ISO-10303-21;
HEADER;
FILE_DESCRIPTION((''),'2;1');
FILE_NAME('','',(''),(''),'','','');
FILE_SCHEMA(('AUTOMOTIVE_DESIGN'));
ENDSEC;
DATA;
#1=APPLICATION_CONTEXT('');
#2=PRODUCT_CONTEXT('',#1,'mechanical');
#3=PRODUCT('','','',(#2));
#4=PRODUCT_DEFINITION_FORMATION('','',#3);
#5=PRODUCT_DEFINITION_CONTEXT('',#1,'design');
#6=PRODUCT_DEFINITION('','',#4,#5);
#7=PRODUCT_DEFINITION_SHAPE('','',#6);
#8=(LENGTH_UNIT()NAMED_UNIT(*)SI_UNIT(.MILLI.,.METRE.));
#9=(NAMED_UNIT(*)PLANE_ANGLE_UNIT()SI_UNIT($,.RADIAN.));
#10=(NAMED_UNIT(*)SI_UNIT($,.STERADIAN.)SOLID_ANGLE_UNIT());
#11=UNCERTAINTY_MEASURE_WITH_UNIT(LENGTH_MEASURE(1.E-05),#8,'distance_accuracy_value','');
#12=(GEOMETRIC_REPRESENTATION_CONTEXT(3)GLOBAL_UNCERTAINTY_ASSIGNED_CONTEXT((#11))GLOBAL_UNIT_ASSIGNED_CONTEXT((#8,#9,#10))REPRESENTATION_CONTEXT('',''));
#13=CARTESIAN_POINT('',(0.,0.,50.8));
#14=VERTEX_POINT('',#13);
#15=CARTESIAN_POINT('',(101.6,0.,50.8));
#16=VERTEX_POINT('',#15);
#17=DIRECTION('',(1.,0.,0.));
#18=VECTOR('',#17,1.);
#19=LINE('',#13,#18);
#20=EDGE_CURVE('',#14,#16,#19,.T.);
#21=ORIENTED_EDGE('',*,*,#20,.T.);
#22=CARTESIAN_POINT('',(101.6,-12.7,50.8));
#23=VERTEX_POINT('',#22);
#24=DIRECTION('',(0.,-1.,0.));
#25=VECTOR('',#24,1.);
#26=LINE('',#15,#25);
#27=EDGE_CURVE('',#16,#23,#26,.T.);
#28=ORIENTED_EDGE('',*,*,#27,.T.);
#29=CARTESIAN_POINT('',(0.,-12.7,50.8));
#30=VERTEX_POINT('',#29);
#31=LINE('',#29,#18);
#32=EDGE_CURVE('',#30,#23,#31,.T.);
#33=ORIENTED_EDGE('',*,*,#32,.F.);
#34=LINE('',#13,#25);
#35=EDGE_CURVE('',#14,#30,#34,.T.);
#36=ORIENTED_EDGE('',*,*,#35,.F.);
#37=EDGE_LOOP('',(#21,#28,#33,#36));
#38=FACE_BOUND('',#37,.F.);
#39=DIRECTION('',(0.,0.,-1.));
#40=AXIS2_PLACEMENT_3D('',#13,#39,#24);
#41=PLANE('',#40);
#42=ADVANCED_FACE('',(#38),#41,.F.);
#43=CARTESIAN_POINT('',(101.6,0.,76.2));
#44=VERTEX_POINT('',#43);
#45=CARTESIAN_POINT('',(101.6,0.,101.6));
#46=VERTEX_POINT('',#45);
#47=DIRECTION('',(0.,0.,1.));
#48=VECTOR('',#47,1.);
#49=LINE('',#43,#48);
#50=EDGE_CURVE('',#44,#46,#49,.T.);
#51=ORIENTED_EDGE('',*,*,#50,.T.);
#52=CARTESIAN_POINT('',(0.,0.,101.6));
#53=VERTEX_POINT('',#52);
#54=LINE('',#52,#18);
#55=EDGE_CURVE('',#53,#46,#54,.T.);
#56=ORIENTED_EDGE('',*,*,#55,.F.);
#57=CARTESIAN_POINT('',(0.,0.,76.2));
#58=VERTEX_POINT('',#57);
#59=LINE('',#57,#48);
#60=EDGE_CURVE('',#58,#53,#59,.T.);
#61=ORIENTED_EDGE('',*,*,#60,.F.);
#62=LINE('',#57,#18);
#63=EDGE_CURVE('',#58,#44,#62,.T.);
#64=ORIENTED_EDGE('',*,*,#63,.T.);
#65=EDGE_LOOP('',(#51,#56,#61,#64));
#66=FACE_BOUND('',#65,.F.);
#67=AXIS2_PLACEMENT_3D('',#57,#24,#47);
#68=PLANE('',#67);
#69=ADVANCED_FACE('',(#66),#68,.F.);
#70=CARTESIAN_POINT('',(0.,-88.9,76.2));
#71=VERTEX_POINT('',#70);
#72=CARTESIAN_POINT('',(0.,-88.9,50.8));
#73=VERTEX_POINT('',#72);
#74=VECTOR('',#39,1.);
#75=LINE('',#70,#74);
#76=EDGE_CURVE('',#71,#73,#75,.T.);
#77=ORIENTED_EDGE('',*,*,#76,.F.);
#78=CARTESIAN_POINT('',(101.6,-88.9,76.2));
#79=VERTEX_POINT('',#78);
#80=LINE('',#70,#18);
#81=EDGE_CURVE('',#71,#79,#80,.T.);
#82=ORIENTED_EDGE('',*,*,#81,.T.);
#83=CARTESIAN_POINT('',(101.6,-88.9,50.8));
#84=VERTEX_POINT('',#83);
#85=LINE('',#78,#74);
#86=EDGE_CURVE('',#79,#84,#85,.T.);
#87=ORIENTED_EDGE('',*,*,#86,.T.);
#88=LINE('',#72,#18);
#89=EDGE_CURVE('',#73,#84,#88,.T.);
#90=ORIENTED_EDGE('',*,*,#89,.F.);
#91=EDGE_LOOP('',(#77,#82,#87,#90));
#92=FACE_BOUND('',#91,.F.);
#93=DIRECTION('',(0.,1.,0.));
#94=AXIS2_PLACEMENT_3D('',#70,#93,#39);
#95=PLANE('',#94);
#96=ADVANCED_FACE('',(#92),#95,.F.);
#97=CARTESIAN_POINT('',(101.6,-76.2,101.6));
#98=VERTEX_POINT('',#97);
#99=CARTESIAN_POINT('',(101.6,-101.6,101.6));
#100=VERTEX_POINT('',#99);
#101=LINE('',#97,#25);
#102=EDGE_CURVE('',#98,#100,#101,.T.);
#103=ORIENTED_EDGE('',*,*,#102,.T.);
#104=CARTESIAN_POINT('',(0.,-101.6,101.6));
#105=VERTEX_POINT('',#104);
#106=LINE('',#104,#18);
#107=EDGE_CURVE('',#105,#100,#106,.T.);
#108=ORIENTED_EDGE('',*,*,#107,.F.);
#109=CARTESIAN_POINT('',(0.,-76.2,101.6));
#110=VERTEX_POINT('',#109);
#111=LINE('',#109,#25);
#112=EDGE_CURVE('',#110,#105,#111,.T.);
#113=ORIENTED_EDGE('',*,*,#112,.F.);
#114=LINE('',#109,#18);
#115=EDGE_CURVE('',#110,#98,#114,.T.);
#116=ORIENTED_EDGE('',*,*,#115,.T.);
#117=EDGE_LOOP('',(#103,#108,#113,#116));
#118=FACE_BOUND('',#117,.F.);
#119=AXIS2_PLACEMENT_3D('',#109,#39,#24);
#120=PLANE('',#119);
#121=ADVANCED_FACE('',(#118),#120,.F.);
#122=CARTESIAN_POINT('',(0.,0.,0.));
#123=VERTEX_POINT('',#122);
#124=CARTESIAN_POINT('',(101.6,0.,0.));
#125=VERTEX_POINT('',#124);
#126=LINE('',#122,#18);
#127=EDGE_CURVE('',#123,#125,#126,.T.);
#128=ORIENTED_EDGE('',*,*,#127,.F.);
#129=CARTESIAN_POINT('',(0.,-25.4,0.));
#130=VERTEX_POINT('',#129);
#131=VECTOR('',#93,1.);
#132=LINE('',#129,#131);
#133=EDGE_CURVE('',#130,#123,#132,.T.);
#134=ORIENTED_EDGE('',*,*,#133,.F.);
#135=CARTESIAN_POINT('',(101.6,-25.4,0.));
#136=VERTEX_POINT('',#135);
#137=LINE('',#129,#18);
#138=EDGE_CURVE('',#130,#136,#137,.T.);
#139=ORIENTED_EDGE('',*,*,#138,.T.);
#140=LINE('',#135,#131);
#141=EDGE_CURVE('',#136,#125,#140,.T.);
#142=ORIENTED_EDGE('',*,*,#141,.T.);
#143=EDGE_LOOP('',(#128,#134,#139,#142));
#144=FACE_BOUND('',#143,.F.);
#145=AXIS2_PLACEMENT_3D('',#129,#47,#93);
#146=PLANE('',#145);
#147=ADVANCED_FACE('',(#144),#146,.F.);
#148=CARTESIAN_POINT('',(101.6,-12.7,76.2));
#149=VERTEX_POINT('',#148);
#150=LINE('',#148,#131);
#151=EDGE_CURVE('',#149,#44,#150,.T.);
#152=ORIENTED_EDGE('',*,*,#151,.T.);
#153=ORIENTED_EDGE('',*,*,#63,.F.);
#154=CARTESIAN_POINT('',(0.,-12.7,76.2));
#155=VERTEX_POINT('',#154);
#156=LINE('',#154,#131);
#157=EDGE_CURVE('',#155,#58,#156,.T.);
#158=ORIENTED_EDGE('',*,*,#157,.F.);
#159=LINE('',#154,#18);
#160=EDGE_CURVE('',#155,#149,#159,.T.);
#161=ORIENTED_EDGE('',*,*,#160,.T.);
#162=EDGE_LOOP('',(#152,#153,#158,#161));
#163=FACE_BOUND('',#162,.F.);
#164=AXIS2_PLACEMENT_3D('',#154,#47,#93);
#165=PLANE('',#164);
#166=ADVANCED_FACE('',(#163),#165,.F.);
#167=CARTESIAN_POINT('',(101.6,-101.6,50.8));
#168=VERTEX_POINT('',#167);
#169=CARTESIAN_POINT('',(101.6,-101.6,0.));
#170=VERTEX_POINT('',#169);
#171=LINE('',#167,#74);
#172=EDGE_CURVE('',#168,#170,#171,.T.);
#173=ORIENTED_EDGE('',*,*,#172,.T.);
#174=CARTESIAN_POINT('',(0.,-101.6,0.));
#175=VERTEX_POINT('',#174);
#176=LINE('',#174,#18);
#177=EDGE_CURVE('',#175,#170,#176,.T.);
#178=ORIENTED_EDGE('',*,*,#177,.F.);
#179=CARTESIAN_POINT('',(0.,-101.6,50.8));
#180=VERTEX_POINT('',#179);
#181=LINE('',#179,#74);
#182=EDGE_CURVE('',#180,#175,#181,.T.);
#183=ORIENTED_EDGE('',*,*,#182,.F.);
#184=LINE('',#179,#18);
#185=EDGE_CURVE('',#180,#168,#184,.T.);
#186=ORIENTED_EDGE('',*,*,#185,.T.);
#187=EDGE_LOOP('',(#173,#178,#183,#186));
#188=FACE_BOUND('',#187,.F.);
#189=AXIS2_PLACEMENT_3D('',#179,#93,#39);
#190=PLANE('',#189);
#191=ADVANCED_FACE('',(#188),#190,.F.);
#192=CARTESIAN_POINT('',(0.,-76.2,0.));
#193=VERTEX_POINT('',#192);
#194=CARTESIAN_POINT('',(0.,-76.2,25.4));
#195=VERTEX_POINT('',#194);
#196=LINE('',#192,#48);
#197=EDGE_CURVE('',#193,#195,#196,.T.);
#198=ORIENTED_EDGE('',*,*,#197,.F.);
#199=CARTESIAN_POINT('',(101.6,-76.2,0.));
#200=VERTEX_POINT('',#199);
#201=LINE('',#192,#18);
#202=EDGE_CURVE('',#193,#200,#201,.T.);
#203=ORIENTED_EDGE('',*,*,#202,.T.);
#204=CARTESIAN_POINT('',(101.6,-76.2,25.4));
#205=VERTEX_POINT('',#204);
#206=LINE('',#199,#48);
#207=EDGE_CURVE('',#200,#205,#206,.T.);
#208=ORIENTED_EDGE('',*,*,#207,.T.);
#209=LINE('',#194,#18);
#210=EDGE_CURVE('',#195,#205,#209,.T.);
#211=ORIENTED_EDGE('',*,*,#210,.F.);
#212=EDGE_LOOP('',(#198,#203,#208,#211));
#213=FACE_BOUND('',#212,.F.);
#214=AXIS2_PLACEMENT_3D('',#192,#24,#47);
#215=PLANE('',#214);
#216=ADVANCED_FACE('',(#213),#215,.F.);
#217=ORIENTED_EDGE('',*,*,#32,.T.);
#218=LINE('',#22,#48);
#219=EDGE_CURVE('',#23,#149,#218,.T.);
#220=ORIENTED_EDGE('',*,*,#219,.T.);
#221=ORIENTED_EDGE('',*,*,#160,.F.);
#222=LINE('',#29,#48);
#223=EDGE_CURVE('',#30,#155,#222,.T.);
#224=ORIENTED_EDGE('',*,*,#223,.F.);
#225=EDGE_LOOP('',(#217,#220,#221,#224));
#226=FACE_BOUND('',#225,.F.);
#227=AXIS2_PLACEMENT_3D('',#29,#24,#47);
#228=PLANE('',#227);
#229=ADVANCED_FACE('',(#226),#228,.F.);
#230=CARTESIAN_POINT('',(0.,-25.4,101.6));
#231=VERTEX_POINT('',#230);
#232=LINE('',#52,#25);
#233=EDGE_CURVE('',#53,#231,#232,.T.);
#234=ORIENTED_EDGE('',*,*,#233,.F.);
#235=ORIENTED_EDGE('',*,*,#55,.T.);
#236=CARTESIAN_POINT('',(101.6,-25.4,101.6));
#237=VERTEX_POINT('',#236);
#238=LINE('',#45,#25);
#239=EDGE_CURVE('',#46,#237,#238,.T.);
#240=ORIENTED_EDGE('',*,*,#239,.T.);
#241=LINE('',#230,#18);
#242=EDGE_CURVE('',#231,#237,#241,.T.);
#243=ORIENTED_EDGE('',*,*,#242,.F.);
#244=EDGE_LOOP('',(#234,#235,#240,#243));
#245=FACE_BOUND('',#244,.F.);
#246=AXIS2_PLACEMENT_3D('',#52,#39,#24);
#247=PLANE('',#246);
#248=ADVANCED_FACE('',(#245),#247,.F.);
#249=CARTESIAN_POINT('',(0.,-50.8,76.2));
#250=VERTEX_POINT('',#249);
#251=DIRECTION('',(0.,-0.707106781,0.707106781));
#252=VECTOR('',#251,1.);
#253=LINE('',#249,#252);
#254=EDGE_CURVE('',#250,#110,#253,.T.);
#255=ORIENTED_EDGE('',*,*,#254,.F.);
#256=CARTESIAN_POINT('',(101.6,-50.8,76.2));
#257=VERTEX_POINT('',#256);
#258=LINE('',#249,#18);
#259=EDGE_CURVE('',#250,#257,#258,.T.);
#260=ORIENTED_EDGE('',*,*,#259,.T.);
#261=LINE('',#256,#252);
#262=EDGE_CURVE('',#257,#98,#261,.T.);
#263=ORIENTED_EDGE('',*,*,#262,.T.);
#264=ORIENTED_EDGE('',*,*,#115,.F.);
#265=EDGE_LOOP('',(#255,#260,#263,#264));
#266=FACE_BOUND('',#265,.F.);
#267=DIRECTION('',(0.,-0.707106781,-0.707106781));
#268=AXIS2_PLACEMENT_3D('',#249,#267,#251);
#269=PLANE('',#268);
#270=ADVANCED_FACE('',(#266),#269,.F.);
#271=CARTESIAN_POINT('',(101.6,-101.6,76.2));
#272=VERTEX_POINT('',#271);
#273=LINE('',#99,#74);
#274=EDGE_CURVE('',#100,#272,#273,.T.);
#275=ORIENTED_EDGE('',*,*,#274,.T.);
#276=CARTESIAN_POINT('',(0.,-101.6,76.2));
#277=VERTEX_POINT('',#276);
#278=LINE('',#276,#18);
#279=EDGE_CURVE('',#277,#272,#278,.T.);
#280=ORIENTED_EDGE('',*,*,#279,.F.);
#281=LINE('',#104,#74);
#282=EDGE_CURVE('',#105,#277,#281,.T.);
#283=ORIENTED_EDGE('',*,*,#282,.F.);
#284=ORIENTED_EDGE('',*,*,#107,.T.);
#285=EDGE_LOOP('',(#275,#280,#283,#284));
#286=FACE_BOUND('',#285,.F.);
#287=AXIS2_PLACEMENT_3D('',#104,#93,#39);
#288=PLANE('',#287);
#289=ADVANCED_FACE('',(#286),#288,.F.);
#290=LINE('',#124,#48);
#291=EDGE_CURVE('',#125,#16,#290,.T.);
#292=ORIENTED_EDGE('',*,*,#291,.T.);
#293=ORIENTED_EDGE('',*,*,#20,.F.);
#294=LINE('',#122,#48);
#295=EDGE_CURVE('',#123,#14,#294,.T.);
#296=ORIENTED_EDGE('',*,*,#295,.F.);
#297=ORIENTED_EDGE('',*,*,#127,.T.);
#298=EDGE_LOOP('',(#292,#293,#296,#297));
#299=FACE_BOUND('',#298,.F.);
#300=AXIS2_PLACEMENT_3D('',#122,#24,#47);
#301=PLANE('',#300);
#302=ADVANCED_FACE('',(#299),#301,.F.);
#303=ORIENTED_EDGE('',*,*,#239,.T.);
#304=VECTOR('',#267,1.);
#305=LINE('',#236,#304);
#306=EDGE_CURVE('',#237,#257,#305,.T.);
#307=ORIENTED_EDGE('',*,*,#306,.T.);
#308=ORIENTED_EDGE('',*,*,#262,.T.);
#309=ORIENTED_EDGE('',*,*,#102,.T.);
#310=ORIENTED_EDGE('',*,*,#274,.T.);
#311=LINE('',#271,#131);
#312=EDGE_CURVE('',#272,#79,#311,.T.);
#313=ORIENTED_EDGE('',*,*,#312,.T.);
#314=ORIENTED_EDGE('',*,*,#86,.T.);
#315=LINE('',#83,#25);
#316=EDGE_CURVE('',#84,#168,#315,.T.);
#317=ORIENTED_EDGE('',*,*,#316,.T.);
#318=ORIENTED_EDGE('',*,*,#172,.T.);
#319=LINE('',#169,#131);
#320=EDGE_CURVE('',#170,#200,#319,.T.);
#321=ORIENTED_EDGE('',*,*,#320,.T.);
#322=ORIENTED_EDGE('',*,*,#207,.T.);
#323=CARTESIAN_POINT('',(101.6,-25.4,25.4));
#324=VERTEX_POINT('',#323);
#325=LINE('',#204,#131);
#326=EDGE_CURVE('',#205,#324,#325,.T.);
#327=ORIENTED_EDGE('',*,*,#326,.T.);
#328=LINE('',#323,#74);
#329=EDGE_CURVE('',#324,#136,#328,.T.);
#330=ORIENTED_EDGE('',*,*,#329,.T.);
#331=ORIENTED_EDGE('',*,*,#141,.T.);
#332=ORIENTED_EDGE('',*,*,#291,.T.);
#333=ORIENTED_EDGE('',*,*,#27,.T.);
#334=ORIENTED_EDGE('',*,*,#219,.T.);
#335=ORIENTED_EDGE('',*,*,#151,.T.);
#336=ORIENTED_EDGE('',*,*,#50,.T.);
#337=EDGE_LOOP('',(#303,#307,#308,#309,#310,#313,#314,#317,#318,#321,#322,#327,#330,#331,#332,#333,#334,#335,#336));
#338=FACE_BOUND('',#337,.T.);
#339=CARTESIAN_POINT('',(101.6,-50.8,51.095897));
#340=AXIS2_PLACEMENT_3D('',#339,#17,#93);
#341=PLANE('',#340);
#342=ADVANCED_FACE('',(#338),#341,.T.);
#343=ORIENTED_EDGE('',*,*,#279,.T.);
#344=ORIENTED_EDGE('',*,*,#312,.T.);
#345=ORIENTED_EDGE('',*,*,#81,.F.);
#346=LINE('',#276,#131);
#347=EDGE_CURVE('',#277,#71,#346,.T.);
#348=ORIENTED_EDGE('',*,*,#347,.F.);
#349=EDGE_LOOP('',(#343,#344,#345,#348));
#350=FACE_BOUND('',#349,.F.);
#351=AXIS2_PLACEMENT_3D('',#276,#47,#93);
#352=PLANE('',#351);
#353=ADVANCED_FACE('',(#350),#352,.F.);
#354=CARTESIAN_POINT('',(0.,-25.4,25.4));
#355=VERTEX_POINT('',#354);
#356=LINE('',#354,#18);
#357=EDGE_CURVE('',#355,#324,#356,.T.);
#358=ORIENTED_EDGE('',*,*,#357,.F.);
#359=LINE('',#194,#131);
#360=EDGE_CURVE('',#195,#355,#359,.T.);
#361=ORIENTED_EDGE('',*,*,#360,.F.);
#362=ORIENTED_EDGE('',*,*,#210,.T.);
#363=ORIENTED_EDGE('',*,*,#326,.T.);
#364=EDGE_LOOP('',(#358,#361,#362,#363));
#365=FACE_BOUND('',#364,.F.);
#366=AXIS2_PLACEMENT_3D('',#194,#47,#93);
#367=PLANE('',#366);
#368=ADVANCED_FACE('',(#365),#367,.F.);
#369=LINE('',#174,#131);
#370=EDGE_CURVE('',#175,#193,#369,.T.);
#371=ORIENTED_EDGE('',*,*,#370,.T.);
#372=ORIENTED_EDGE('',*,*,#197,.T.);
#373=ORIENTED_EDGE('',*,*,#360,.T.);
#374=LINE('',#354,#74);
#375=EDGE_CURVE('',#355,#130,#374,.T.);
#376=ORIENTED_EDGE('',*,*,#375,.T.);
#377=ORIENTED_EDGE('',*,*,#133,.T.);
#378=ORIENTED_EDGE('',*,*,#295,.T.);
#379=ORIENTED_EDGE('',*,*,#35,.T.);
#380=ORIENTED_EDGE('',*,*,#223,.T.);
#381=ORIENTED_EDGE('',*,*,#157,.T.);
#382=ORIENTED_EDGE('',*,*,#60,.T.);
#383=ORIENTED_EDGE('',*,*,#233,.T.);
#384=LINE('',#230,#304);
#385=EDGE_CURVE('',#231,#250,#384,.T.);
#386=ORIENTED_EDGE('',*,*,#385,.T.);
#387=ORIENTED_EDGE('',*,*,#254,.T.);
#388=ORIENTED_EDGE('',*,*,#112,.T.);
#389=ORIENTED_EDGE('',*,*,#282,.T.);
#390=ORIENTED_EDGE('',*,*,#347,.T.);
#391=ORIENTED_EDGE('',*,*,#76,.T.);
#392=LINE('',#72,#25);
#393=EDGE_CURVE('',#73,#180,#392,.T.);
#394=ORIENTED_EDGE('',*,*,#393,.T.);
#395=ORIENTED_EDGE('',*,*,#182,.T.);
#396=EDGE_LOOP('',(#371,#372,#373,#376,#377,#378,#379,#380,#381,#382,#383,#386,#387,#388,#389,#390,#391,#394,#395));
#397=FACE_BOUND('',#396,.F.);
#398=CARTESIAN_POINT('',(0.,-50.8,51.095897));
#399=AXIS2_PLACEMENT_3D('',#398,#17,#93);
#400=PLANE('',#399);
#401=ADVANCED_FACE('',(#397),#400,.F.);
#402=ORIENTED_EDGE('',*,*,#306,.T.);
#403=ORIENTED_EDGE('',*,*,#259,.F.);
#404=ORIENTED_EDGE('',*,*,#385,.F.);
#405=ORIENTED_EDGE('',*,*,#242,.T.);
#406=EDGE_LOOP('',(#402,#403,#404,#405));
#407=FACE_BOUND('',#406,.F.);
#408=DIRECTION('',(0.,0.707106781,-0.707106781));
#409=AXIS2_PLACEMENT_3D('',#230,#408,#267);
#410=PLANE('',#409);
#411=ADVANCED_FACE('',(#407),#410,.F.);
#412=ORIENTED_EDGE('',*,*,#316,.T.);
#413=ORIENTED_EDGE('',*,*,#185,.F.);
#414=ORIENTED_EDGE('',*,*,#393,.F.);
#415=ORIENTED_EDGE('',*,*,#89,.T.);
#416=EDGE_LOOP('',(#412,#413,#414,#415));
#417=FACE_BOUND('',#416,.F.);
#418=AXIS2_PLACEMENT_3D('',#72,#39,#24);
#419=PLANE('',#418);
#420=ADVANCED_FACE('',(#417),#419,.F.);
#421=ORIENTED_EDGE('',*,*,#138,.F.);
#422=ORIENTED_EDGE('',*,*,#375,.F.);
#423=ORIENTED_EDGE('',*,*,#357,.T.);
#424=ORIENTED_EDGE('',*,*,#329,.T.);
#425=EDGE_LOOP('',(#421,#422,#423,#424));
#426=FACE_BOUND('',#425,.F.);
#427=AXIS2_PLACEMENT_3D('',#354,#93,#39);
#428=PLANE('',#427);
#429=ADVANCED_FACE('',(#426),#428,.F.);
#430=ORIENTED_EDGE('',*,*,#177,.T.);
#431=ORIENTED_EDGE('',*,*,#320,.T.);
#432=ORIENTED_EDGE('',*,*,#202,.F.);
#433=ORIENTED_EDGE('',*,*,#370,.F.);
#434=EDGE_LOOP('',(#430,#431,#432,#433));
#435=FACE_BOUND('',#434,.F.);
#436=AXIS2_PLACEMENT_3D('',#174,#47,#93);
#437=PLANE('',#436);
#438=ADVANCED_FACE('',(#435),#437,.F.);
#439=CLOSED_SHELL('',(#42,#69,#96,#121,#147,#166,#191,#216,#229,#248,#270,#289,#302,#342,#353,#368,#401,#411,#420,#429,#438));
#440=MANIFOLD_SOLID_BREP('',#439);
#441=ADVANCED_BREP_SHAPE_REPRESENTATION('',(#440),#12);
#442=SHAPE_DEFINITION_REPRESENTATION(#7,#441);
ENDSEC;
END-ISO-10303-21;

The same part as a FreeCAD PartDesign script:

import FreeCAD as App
import Part
import Sketcher

V = App.Vector
Q = App.Units.Quantity

doc = App.newDocument("Part")
params = doc.addObject("Spreadsheet::Sheet", "Params")
for row, (alias, value) in enumerate([
    ("sketch1_width", "1 in"),
    ("sketch1_width2", "0.5 in"),
    ("pad1_length", "4 in"),
], start=1):
    params.set(f"A{row}", alias)
    params.set(f"B{row}", "=" + value)
    params.setAlias(f"B{row}", alias)

body = doc.addObject("PartDesign::Body", "Body")

sketch1 = doc.addObject("Sketcher::SketchObject", "Sketch")
body.addObject(sketch1)
sketch1.AttachmentSupport = (doc.YZ_Plane, [""])
sketch1.MapMode = "FlatFace"
sketch1.addGeometry([
    Part.LineSegment(V(-25, 0, 0), V(0, 0, 0)),
    Part.LineSegment(V(0, 0, 0), V(0, 51, 0)),
    Part.LineSegment(V(0, 51, 0), V(-13, 51, 0)),
    Part.LineSegment(V(-13, 51, 0), V(-13, 76, 0)),
    Part.LineSegment(V(-13, 76, 0), V(0, 76, 0)),
    Part.LineSegment(V(0, 76, 0), V(0, 102, 0)),
    Part.LineSegment(V(0, 102, 0), V(-25, 102, 0)),
    Part.LineSegment(V(-25, 102, 0), V(-51, 76, 0)),
    Part.LineSegment(V(-51, 76, 0), V(-76, 102, 0)),
    Part.LineSegment(V(-76, 102, 0), V(-102, 102, 0)),
    Part.LineSegment(V(-102, 102, 0), V(-102, 76, 0)),
    Part.LineSegment(V(-102, 76, 0), V(-89, 76, 0)),
    Part.LineSegment(V(-89, 76, 0), V(-89, 51, 0)),
    Part.LineSegment(V(-89, 51, 0), V(-102, 51, 0)),
    Part.LineSegment(V(-102, 51, 0), V(-102, 0, 0)),
    Part.LineSegment(V(-102, 0, 0), V(-76, 0, 0)),
    Part.LineSegment(V(-76, 0, 0), V(-76, 25, 0)),
    Part.LineSegment(V(-76, 25, 0), V(-25, 25, 0)),
    Part.LineSegment(V(-25, 25, 0), V(-25, 0, 0)),
], False)
sketch1.addConstraint([
    Sketcher.Constraint("Coincident", 0, 2, 1, 1),
    Sketcher.Constraint("Coincident", 1, 2, 2, 1),
    Sketcher.Constraint("Coincident", 2, 2, 3, 1),
    Sketcher.Constraint("Coincident", 3, 2, 4, 1),
    Sketcher.Constraint("Coincident", 4, 2, 5, 1),
    Sketcher.Constraint("Coincident", 5, 2, 6, 1),
    Sketcher.Constraint("Coincident", 6, 2, 7, 1),
    Sketcher.Constraint("Coincident", 7, 2, 8, 1),
    Sketcher.Constraint("Coincident", 8, 2, 9, 1),
    Sketcher.Constraint("Coincident", 9, 2, 10, 1),
    Sketcher.Constraint("Coincident", 10, 2, 11, 1),
    Sketcher.Constraint("Coincident", 11, 2, 12, 1),
    Sketcher.Constraint("Coincident", 12, 2, 13, 1),
    Sketcher.Constraint("Coincident", 13, 2, 14, 1),
    Sketcher.Constraint("Coincident", 14, 2, 15, 1),
    Sketcher.Constraint("Coincident", 15, 2, 16, 1),
    Sketcher.Constraint("Coincident", 16, 2, 17, 1),
    Sketcher.Constraint("Coincident", 17, 2, 18, 1),
    Sketcher.Constraint("Coincident", 18, 2, 0, 1),
    Sketcher.Constraint("Horizontal", 0),
    Sketcher.Constraint("Vertical", 1),
    Sketcher.Constraint("Horizontal", 2),
    Sketcher.Constraint("Vertical", 3),
    Sketcher.Constraint("Horizontal", 4),
    Sketcher.Constraint("Vertical", 5),
    Sketcher.Constraint("Horizontal", 6),
    Sketcher.Constraint("Horizontal", 9),
    Sketcher.Constraint("Vertical", 10),
    Sketcher.Constraint("Horizontal", 11),
    Sketcher.Constraint("Vertical", 12),
    Sketcher.Constraint("Horizontal", 13),
    Sketcher.Constraint("Vertical", 14),
    Sketcher.Constraint("Horizontal", 15),
    Sketcher.Constraint("Vertical", 16),
    Sketcher.Constraint("Horizontal", 17),
    Sketcher.Constraint("Vertical", 18),
    Sketcher.Constraint("Coincident", 0, 2, -1, 1),
    Sketcher.Constraint("PointOnObject", 4, 2, -2),
    Sketcher.Constraint("PointOnObject", 14, 2, -1),
    Sketcher.Constraint("Perpendicular", 7, 8),
    Sketcher.Constraint("Horizontal", 4, 2, 7, 2),
    Sketcher.Constraint("Horizontal", 6, 2, 8, 2),
    Sketcher.Constraint("Horizontal", 7, 2, 10, 2),
    Sketcher.Constraint("Horizontal", 2, 2, 12, 2),
    Sketcher.Constraint("Vertical", 10, 2, 13, 2),
    Sketcher.Constraint("Vertical", 8, 2, 15, 2),
    Sketcher.Constraint("Vertical", 6, 2, 17, 2),
    Sketcher.Constraint("Equal", 6, 9),
    Sketcher.Constraint("Equal", 4, 11),
    Sketcher.Constraint("Equal", 17, 1),
    Sketcher.Constraint("Equal", 15, 3),
    Sketcher.Constraint("Equal", 3, 5),
    Sketcher.Constraint("Equal", 12, 16),
    Sketcher.Constraint("Equal", 7, 8),
    Sketcher.Constraint("DistanceX", 0, 1, 0, 2, Q("1 in")),
    Sketcher.Constraint("DistanceX", 2, 2, 2, 1, Q("0.5 in")),
])
sketch1.setExpression("Constraints[54]", "Params.sketch1_width")
sketch1.setExpression("Constraints[55]", "Params.sketch1_width2")
pad1 = doc.addObject("PartDesign::Pad", "Pad")
body.addObject(pad1)
pad1.Profile = sketch1
pad1.setExpression("Length", "Params.pad1_length")

doc.recompute()
